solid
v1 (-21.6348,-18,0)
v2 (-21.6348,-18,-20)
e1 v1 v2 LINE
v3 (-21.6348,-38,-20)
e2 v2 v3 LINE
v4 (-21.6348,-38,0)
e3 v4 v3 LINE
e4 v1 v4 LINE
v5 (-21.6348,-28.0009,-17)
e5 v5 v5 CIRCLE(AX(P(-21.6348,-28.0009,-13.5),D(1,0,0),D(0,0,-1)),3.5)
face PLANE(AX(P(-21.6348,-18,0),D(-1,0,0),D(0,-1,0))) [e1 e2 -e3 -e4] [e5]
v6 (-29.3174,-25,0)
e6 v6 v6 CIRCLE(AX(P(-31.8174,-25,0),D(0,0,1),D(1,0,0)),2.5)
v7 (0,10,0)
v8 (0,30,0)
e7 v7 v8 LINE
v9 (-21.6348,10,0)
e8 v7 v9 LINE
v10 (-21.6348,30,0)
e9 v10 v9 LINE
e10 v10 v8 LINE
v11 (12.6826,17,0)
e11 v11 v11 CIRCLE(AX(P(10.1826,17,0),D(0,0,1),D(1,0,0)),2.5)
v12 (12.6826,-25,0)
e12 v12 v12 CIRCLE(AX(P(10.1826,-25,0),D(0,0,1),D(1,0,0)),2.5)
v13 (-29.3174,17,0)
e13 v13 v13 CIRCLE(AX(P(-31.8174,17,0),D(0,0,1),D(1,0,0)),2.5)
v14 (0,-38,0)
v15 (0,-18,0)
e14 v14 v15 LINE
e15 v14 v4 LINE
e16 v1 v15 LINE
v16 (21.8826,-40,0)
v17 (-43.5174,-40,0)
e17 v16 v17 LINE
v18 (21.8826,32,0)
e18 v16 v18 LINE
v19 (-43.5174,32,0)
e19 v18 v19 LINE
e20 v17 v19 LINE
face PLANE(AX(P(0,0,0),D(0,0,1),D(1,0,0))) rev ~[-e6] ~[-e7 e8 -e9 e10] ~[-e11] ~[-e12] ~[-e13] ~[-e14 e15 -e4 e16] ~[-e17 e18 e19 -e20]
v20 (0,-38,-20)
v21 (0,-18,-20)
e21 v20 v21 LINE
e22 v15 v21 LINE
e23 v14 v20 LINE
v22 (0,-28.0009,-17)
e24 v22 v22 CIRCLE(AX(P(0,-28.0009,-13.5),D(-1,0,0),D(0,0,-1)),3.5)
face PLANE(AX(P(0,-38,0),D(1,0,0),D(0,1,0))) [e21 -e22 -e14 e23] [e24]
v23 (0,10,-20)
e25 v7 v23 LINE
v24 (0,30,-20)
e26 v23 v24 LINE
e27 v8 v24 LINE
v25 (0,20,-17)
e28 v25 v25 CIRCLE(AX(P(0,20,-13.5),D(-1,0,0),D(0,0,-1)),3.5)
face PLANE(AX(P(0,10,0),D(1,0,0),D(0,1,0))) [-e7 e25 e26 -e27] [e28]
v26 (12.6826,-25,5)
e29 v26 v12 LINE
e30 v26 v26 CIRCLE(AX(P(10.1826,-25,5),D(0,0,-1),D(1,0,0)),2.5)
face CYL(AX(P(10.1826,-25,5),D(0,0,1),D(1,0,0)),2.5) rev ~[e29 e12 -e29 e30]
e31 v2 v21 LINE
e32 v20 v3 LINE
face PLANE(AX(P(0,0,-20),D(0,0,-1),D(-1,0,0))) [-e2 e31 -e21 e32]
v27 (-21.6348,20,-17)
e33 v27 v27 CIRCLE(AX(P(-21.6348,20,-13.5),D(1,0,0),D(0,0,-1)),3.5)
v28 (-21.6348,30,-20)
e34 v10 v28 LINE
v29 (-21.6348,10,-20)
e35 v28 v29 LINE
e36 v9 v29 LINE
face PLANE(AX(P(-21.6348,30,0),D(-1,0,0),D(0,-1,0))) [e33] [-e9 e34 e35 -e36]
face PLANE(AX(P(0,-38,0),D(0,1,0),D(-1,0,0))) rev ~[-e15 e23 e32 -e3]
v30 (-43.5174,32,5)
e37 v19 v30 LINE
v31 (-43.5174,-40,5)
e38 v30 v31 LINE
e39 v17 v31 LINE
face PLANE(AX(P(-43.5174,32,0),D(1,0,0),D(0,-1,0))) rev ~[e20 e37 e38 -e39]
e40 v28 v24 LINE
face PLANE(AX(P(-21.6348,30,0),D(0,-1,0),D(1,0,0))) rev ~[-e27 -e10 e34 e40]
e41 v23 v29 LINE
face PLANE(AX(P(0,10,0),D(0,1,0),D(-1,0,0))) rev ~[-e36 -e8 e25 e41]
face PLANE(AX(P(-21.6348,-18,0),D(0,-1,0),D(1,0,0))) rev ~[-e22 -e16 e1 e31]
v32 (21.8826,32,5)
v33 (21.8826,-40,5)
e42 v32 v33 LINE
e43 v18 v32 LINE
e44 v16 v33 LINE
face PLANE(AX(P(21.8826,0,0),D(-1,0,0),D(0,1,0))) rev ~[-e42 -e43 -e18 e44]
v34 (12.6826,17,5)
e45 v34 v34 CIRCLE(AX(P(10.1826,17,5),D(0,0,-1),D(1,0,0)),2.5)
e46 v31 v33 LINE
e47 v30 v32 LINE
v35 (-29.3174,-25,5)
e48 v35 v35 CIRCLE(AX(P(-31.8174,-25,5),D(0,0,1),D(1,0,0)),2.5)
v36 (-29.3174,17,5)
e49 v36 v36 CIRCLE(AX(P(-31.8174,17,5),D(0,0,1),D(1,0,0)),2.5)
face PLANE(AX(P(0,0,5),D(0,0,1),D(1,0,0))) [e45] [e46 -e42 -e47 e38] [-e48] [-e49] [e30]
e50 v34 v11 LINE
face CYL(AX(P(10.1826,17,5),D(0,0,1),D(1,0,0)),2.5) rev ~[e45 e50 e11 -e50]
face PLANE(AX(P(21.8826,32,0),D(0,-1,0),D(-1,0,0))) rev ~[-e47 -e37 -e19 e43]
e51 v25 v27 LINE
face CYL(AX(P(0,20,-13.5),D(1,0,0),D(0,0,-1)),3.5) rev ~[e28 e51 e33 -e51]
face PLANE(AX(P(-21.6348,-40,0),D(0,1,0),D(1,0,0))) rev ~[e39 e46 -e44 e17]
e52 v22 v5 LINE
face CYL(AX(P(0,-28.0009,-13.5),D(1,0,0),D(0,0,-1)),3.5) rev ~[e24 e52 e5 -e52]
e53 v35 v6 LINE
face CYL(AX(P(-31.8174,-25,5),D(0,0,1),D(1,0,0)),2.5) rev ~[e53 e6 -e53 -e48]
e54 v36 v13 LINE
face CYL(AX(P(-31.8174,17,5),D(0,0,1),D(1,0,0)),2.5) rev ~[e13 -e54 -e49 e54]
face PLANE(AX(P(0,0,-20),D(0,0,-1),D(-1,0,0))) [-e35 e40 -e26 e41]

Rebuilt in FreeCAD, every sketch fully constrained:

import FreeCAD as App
import Part
import Sketcher

doc = App.newDocument("Part")
body = doc.addObject("PartDesign::Body", "Body")

sketch1 = body.newObject("Sketcher::SketchObject", "Sketch")
sketch1.AttachmentSupport = (doc.getObject("XY_Plane"), [""])
sketch1.MapMode = "FlatFace"
sketch1.addGeometry([
    Part.LineSegment(App.Vector(22, 32, 0), App.Vector(-44, 32, 0)),
    Part.LineSegment(App.Vector(-44, 32, 0), App.Vector(-44, -40, 0)),
    Part.LineSegment(App.Vector(-44, -40, 0), App.Vector(22, -40, 0)),
    Part.LineSegment(App.Vector(22, -40, 0), App.Vector(22, 32, 0)),
], False)
sketch1.addConstraint([
    Sketcher.Constraint("Coincident", 0, 2, 1, 1),
    Sketcher.Constraint("Coincident", 1, 2, 2, 1),
    Sketcher.Constraint("Coincident", 2, 2, 3, 1),
    Sketcher.Constraint("Coincident", 3, 2, 0, 1),
    Sketcher.Constraint("Horizontal", 0),
    Sketcher.Constraint("Vertical", 1),
    Sketcher.Constraint("Horizontal", 2),
    Sketcher.Constraint("Vertical", 3),
    Sketcher.Constraint("DistanceY", 1, 2, 1, 1, 72.0),
    Sketcher.Constraint("DistanceX", 0, 2, 0, 1, 65.4),
    Sketcher.Constraint("DistanceY", -1, 1, 0, 2, 32.0),
    Sketcher.Constraint("DistanceX", 0, 2, -1, 1, 43.5174),
])
pad1 = body.newObject("PartDesign::Pad", "Pad")
pad1.Profile = sketch1
pad1.Length = 5

sketch2 = body.newObject("Sketcher::SketchObject", "Sketch001")
sketch2.AttachmentSupport = (doc.getObject("XY_Plane"), [""])
sketch2.MapMode = "FlatFace"
sketch2.addGeometry([
    Part.LineSegment(App.Vector(0, -18, 0), App.Vector(0, -38, 0)),
    Part.LineSegment(App.Vector(0, -38, 0), App.Vector(-22, -38, 0)),
    Part.LineSegment(App.Vector(-22, -38, 0), App.Vector(-22, -18, 0)),
    Part.LineSegment(App.Vector(-22, -18, 0), App.Vector(0, -18, 0)),
    Part.LineSegment(App.Vector(0, 30, 0), App.Vector(0, 10, 0)),
    Part.LineSegment(App.Vector(0, 10, 0), App.Vector(-22, 10, 0)),
    Part.LineSegment(App.Vector(-22, 10, 0), App.Vector(-22, 30, 0)),
    Part.LineSegment(App.Vector(-22, 30, 0), App.Vector(0, 30, 0)),
], False)
sketch2.addConstraint([
    Sketcher.Constraint("Coincident", 0, 2, 1, 1),
    Sketcher.Constraint("Coincident", 1, 2, 2, 1),
    Sketcher.Constraint("Coincident", 2, 2, 3, 1),
    Sketcher.Constraint("Coincident", 3, 2, 0, 1),
    Sketcher.Constraint("Coincident", 4, 2, 5, 1),
    Sketcher.Constraint("Coincident", 5, 2, 6, 1),
    Sketcher.Constraint("Coincident", 6, 2, 7, 1),
    Sketcher.Constraint("Coincident", 7, 2, 4, 1),
    Sketcher.Constraint("Vertical", 0),
    Sketcher.Constraint("Horizontal", 1),
    Sketcher.Constraint("Vertical", 2),
    Sketcher.Constraint("Horizontal", 3),
    Sketcher.Constraint("Vertical", 4),
    Sketcher.Constraint("Horizontal", 5),
    Sketcher.Constraint("Vertical", 6),
    Sketcher.Constraint("Horizontal", 7),
    Sketcher.Constraint("PointOnObject", 0, 2, -2),
    Sketcher.Constraint("PointOnObject", 4, 2, -2),
    Sketcher.Constraint("Vertical", 2, 2, 5, 2),
    Sketcher.Constraint("Equal", 2, 4),
    Sketcher.Constraint("DistanceY", 0, 2, 0, 1, 20.0),
    Sketcher.Constraint("DistanceY", -1, 1, 4, 2, 10.0),
    Sketcher.Constraint("DistanceY", 0, 2, -1, 1, 38.0),
    Sketcher.Constraint("DistanceX", 1, 2, 1, 1, 21.6348),
])
pad2 = body.newObject("PartDesign::Pad", "Pad001")
pad2.Profile = sketch2
pad2.Length = 20
pad2.Reversed = True

sketch3 = body.newObject("Sketcher::SketchObject", "Sketch002")
sketch3.AttachmentSupport = (doc.getObject("XY_Plane"), [""])
sketch3.MapMode = "FlatFace"
sketch3.AttachmentOffset = App.Placement(App.Vector(0, 0, 5), App.Rotation())
sketch3.addGeometry([
    Part.Circle(App.Vector(10.2, 17, 0), App.Vector(0, 0, 1), 2.5),
    Part.Circle(App.Vector(-31.8, 17, 0), App.Vector(0, 0, 1), 2.5),
    Part.Circle(App.Vector(10.2, -25, 0), App.Vector(0, 0, 1), 2.5),
    Part.Circle(App.Vector(-31.8, -25, 0), App.Vector(0, 0, 1), 2.5),
], False)
sketch3.addConstraint([
    Sketcher.Constraint("Equal", 0, 1),
    Sketcher.Constraint("Equal", 1, 2),
    Sketcher.Constraint("Equal", 2, 3),
    Sketcher.Constraint("Horizontal", 0, 3, 1, 3),
    Sketcher.Constraint("Horizontal", 2, 3, 3, 3),
    Sketcher.Constraint("Vertical", 0, 3, 2, 3),
    Sketcher.Constraint("Vertical", 1, 3, 3, 3),
    Sketcher.Constraint("Diameter", 0, 5.0),
    Sketcher.Constraint("DistanceX", 1, 3, 0, 3, 42.0),
    Sketcher.Constraint("DistanceY", 2, 3, 0, 3, 42.0),
    Sketcher.Constraint("DistanceY", -1, 1, 0, 3, 17.0),
    Sketcher.Constraint("DistanceX", -1, 1, 0, 3, 10.1826),
])
pocket1 = body.newObject("PartDesign::Pocket", "Pocket")
pocket1.Profile = sketch3
pocket1.Type = "ThroughAll"

sketch4 = body.newObject("Sketcher::SketchObject", "Sketch003")
sketch4.AttachmentSupport = (doc.getObject("YZ_Plane"), [""])
sketch4.MapMode = "FlatFace"
sketch4.addGeometry([
    Part.Circle(App.Vector(20, -13.5, 0), App.Vector(0, 0, 1), 3.5),
    Part.Circle(App.Vector(-28, -13.5, 0), App.Vector(0, 0, 1), 3.5),
], False)
sketch4.addConstraint([
    Sketcher.Constraint("Equal", 0, 1),
    Sketcher.Constraint("Horizontal", 0, 3, 1, 3),
    Sketcher.Constraint("Diameter", 0, 7.0),
    Sketcher.Constraint("DistanceX", -1, 1, 0, 3, 20.0),
    Sketcher.Constraint("DistanceY", 0, 3, -1, 1, 13.5),
    Sketcher.Constraint("DistanceX", 1, 3, -1, 1, 28.001),
])
pocket2 = body.newObject("PartDesign::Pocket", "Pocket001")
pocket2.Profile = sketch4
pocket2.Type = "ThroughAll"

doc.recompute()
